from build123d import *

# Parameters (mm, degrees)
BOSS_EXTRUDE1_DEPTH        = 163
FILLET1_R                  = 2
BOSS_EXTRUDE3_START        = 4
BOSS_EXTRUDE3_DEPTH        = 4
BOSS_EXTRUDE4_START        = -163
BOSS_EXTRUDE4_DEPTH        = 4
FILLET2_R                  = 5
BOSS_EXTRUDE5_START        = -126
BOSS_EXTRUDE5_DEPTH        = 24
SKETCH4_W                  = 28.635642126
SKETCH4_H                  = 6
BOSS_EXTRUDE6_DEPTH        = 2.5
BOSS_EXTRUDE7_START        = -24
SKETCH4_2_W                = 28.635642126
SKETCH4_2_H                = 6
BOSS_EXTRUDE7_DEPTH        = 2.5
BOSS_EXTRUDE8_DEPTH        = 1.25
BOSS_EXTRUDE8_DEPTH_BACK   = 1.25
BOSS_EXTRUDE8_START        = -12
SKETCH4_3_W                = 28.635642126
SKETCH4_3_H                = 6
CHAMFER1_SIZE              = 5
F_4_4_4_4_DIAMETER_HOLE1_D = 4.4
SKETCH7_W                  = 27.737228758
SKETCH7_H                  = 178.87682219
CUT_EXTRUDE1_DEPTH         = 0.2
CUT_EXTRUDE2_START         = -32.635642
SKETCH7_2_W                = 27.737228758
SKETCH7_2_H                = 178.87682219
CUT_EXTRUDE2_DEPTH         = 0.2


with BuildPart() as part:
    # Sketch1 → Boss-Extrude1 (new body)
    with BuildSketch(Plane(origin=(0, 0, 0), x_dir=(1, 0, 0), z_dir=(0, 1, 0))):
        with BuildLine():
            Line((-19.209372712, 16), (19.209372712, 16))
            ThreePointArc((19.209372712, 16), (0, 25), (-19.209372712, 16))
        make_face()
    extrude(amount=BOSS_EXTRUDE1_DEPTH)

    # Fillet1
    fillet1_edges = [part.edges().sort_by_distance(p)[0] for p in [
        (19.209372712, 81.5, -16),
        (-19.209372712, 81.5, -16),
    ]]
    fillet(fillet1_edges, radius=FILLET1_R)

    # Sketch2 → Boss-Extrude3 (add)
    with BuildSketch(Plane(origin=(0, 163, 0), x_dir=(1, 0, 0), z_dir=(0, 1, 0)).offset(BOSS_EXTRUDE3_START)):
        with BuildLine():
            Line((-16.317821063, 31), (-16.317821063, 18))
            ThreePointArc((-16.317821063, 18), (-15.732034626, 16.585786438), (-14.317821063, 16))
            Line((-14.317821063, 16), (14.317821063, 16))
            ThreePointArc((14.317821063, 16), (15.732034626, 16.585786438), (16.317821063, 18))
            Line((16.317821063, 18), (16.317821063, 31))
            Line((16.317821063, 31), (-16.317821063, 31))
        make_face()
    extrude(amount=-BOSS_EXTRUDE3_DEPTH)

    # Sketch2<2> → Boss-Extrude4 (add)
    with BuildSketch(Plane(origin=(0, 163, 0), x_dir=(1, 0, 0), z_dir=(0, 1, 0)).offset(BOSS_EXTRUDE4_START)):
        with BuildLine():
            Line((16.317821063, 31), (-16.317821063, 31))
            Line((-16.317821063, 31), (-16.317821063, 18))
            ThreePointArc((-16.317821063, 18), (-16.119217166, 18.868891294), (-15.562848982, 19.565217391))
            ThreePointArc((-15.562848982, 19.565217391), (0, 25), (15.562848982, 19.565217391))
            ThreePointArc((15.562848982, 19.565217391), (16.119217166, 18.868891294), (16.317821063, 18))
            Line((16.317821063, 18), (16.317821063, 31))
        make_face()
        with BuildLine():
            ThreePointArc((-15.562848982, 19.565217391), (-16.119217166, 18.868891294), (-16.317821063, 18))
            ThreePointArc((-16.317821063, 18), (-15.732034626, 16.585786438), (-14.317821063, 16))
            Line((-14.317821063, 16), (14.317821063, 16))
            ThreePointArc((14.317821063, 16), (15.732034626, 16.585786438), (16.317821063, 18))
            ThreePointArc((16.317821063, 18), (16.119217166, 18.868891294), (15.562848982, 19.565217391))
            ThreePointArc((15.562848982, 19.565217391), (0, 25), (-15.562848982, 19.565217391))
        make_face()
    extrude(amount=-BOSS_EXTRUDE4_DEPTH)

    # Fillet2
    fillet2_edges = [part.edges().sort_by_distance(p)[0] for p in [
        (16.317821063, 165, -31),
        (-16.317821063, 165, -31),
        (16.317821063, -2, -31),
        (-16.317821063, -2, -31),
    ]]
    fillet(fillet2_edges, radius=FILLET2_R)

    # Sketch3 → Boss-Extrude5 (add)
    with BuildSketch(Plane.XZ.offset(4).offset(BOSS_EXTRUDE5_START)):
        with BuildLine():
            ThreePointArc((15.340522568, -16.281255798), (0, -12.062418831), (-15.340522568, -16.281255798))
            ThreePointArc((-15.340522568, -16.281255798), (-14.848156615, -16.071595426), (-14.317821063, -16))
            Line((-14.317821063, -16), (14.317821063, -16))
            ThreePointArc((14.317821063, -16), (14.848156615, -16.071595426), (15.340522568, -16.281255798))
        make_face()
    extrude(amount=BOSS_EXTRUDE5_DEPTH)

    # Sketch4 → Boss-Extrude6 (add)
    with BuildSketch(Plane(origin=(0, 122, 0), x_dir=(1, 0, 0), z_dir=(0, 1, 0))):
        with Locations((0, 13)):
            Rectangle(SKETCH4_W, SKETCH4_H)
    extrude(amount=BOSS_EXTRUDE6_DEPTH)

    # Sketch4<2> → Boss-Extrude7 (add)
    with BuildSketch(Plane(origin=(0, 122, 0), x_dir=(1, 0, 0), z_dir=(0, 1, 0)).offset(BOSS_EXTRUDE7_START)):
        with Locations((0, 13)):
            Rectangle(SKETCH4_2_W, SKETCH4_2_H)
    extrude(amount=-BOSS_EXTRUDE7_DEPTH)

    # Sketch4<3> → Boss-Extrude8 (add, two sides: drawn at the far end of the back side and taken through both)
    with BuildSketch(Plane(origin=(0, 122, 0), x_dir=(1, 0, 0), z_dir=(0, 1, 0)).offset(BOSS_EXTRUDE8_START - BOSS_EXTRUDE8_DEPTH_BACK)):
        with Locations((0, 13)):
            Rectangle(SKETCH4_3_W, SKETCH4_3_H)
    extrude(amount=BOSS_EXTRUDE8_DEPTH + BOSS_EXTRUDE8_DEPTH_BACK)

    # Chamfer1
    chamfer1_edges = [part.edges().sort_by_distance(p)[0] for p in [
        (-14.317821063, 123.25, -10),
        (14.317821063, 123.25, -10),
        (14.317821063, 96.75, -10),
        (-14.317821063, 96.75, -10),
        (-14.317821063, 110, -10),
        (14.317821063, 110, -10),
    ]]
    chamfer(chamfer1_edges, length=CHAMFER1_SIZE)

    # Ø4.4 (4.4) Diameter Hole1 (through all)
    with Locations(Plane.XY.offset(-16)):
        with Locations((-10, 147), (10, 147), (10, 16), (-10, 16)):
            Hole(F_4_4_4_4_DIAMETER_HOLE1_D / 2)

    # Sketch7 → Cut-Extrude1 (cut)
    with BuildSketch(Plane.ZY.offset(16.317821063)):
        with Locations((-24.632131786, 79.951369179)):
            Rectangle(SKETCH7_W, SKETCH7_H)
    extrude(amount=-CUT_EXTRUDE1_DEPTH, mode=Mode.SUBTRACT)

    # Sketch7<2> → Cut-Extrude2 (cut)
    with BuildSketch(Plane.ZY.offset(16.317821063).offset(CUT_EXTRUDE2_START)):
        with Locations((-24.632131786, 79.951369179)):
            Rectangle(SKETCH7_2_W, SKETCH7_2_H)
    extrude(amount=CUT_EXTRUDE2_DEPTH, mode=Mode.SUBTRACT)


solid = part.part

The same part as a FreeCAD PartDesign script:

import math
import FreeCAD as App
import Part
import Sketcher


def edges_at(feature, points):
    """Names of the edges that pass closest to the given points."""
    edges = feature.Shape.Edges
    near = lambda p: min(range(len(edges)), key=lambda i: edges[i].distToShape(Part.Vertex(*p))[0])
    return sorted({f"Edge{near(p) + 1}" for p in points})


def add_polygon(sketch, points):
    """Adds a closed chain of lines whose ends are joined by coincident constraints."""
    first, n = sketch.GeometryCount, len(points)
    for a, b in zip(points, points[1:] + points[:1]):
        sketch.addGeometry(Part.LineSegment(App.Vector(*a, 0), App.Vector(*b, 0)), False)
    for i in range(n):
        sketch.addConstraint(Sketcher.Constraint("Coincident", first + i, 2, first + (i + 1) % n, 1))

doc = App.newDocument("Part")
body = doc.addObject("PartDesign::Body", "Body")

# Sketch on XZ plane
sketch1 = body.newObject("Sketcher::SketchObject", "Sketch")
sketch1.AttachmentSupport = (doc.getObject("XZ_Plane"), [""])
sketch1.MapMode = "FlatFace"
sketch1.addGeometry(Part.LineSegment(App.Vector(-19.209373, -16, 0), App.Vector(19.209373, -16, 0)), False)
sketch1.addGeometry(Part.ArcOfCircle(Part.Circle(App.Vector(0, 0, 0), App.Vector(0, 0, 1), 25), math.radians(-140.208181), math.radians(-39.791819)), False)
sketch1.addConstraint(Sketcher.Constraint("Coincident", 0, 1, 1, 1))
sketch1.addConstraint(Sketcher.Constraint("Coincident", 1, 2, 0, 2))
sketch1.addConstraint(Sketcher.Constraint("Horizontal", 0))
sketch1.addConstraint(Sketcher.Constraint("Coincident", 1, 3, -1, 1))
sketch1.addConstraint(Sketcher.Constraint("Radius", 1, 25.0))
sketch1.addConstraint(Sketcher.Constraint("DistanceY", 0, 1, -1, 1, 16.0))
pad1 = body.newObject("PartDesign::Pad", "Pad")
pad1.Profile = sketch1
pad1.Length = 163
pad1.Reversed = True
doc.recompute()

fillet = body.newObject("PartDesign::Fillet", "Fillet")
fillet.Base = (pad1, edges_at(pad1, [(19.209, 81.5, -16), (-19.209, 81.5, -16)]))
fillet.Radius = 2

# Sketch on XZ plane
sketch2 = body.newObject("Sketcher::SketchObject", "Sketch001")
sketch2.AttachmentSupport = (doc.getObject("XZ_Plane"), [""])
sketch2.MapMode = "FlatFace"
sketch2.AttachmentOffset = App.Placement(App.Vector(0, 0, -167), App.Rotation())
sketch2.addGeometry(Part.LineSegment(App.Vector(-16.317821, -31, 0), App.Vector(-16.317821, -18, 0)), False)
sketch2.addGeometry(Part.ArcOfCircle(Part.Circle(App.Vector(-14.317821, -18, 0), App.Vector(0, 0, 1), 2), math.radians(90), math.radians(180)), False)
sketch2.addGeometry(Part.LineSegment(App.Vector(-14.317821, -16, 0), App.Vector(14.317821, -16, 0)), False)
sketch2.addGeometry(Part.ArcOfCircle(Part.Circle(App.Vector(14.317821, -18, 0), App.Vector(0, 0, 1), 2), math.radians(0), math.radians(90)), False)
sketch2.addGeometry(Part.LineSegment(App.Vector(16.317821, -18, 0), App.Vector(16.317821, -31, 0)), False)
sketch2.addGeometry(Part.LineSegment(App.Vector(16.317821, -31, 0), App.Vector(-16.317821, -31, 0)), False)
sketch2.addConstraint(Sketcher.Constraint("Tangent", 0, 2, 1, 2))
sketch2.addConstraint(Sketcher.Constraint("Tangent", 1, 1, 2, 1))
sketch2.addConstraint(Sketcher.Constraint("Tangent", 2, 2, 3, 2))
sketch2.addConstraint(Sketcher.Constraint("Tangent", 3, 1, 4, 1))
sketch2.addConstraint(Sketcher.Constraint("Coincident", 4, 2, 5, 1))
sketch2.addConstraint(Sketcher.Constraint("Coincident", 5, 2, 0, 1))
sketch2.addConstraint(Sketcher.Constraint("Vertical", 0))
sketch2.addConstraint(Sketcher.Constraint("Horizontal", 2))
sketch2.addConstraint(Sketcher.Constraint("Vertical", 4))
sketch2.addConstraint(Sketcher.Constraint("Horizontal", 5))
sketch2.addConstraint(Sketcher.Constraint("Equal", 1, 3))
sketch2.addConstraint(Sketcher.Constraint("Radius", 1, 2.0))
sketch2.addConstraint(Sketcher.Constraint("DistanceY", 0, 1, 0, 2, 13.0))
sketch2.addConstraint(Sketcher.Constraint("DistanceY", 1, 3, -1, 1, 18.0))
sketch2.addConstraint(Sketcher.Constraint("DistanceX", 2, 1, 2, 2, 28.635642))
sketch2.addConstraint(Sketcher.Constraint("DistanceX", 1, 3, -1, 1, 14.317821))
pad2 = body.newObject("PartDesign::Pad", "Pad001")
pad2.Profile = sketch2
pad2.Length = 4

# Sketch on XZ plane
sketch3 = body.newObject("Sketcher::SketchObject", "Sketch002")
sketch3.AttachmentSupport = (doc.getObject("XZ_Plane"), [""])
sketch3.MapMode = "FlatFace"
sketch3.addGeometry(Part.LineSegment(App.Vector(16.317821, -31, 0), App.Vector(-16.317821, -31, 0)), False)
sketch3.addGeometry(Part.LineSegment(App.Vector(-16.317821, -31, 0), App.Vector(-16.317821, -18, 0)), False)
sketch3.addGeometry(Part.ArcOfCircle(Part.Circle(App.Vector(-14.317821, -18, 0), App.Vector(0, 0, 1), 2), math.radians(90), math.radians(180)), False)
sketch3.addGeometry(Part.LineSegment(App.Vector(-14.317821, -16, 0), App.Vector(14.317821, -16, 0)), False)
sketch3.addGeometry(Part.ArcOfCircle(Part.Circle(App.Vector(14.317821, -18, 0), App.Vector(0, 0, 1), 2), math.radians(0), math.radians(90)), False)
sketch3.addGeometry(Part.LineSegment(App.Vector(16.317821, -18, 0), App.Vector(16.317821, -31, 0)), False)
sketch3.addConstraint(Sketcher.Constraint("Coincident", 0, 2, 1, 1))
sketch3.addConstraint(Sketcher.Constraint("Tangent", 1, 2, 2, 2))
sketch3.addConstraint(Sketcher.Constraint("Tangent", 2, 1, 3, 1))
sketch3.addConstraint(Sketcher.Constraint("Tangent", 3, 2, 4, 2))
sketch3.addConstraint(Sketcher.Constraint("Tangent", 4, 1, 5, 1))
sketch3.addConstraint(Sketcher.Constraint("Coincident", 5, 2, 0, 1))
sketch3.addConstraint(Sketcher.Constraint("Horizontal", 0))
sketch3.addConstraint(Sketcher.Constraint("Vertical", 1))
sketch3.addConstraint(Sketcher.Constraint("Horizontal", 3))
sketch3.addConstraint(Sketcher.Constraint("Vertical", 5))
sketch3.addConstraint(Sketcher.Constraint("Equal", 2, 4))
sketch3.addConstraint(Sketcher.Constraint("Radius", 2, 2.0))
sketch3.addConstraint(Sketcher.Constraint("DistanceY", 1, 1, 1, 2, 13.0))
sketch3.addConstraint(Sketcher.Constraint("DistanceY", 2, 3, -1, 1, 18.0))
sketch3.addConstraint(Sketcher.Constraint("DistanceX", 0, 2, 0, 1, 32.635642))
sketch3.addConstraint(Sketcher.Constraint("DistanceX", 2, 3, -1, 1, 14.317821))
pad3 = body.newObject("PartDesign::Pad", "Pad002")
pad3.Profile = sketch3
pad3.Length = 4
doc.recompute()

fillet2 = body.newObject("PartDesign::Fillet", "Fillet001")
fillet2.Base = (pad3, edges_at(pad3, [
    (16.318, 165, -31),
    (-16.318, 165, -31),
    (16.318, -2, -31),
    (-16.318, -2, -31),
]))
fillet2.Radius = 5

# Sketch on XZ plane
sketch4 = body.newObject("Sketcher::SketchObject", "Sketch003")
sketch4.AttachmentSupport = (doc.getObject("XZ_Plane"), [""])
sketch4.MapMode = "FlatFace"
sketch4.AttachmentOffset = App.Placement(App.Vector(0, 0, -122), App.Rotation())
sketch4.addGeometry(Part.ArcOfCircle(Part.Circle(App.Vector(0, -42.062419, 0), App.Vector(0, 0, 1), 30), math.radians(59.246155), math.radians(120.753845)), False)
sketch4.addGeometry(Part.ArcOfCircle(Part.Circle(App.Vector(-14.317821, -18, 0), App.Vector(0, 0, 1), 2), math.radians(90), math.radians(120.753845)), False)
sketch4.addGeometry(Part.LineSegment(App.Vector(-14.317821, -16, 0), App.Vector(14.317821, -16, 0)), False)
sketch4.addGeometry(Part.ArcOfCircle(Part.Circle(App.Vector(14.317821, -18, 0), App.Vector(0, 0, 1), 2), math.radians(59.246155), math.radians(90)), False)
sketch4.addConstraint(Sketcher.Constraint("Tangent", 0, 2, 1, 2))
sketch4.addConstraint(Sketcher.Constraint("Tangent", 1, 1, 2, 1))
sketch4.addConstraint(Sketcher.Constraint("Tangent", 2, 2, 3, 2))
sketch4.addConstraint(Sketcher.Constraint("Tangent", 3, 1, 0, 1))
sketch4.addConstraint(Sketcher.Constraint("Horizontal", 2))
sketch4.addConstraint(Sketcher.Constraint("Equal", 1, 3))
sketch4.addConstraint(Sketcher.Constraint("PointOnObject", 0, 3, -2))
sketch4.addConstraint(Sketcher.Constraint("Radius", 0, 30.0))
sketch4.addConstraint(Sketcher.Constraint("Radius", 1, 2.0))
sketch4.addConstraint(Sketcher.Constraint("DistanceY", 1, 3, -1, 1, 18.0))
sketch4.addConstraint(Sketcher.Constraint("DistanceX", 2, 2, 3, 1, 1.022702))
pad4 = body.newObject("PartDesign::Pad", "Pad003")
pad4.Profile = sketch4
pad4.Length = 24

# Sketch on XZ plane
sketch5 = body.newObject("Sketcher::SketchObject", "Sketch004")
sketch5.AttachmentSupport = (doc.getObject("XZ_Plane"), [""])
sketch5.MapMode = "FlatFace"
sketch5.AttachmentOffset = App.Placement(App.Vector(0, 0, -122), App.Rotation())
add_polygon(sketch5, [(-14.317821, -16), (-14.317821, -10), (14.317821, -10), (14.317821, -16)])  # lines 0-3
sketch5.addConstraint(Sketcher.Constraint("Vertical", 0))
sketch5.addConstraint(Sketcher.Constraint("Horizontal", 1))
sketch5.addConstraint(Sketcher.Constraint("Vertical", 2))
sketch5.addConstraint(Sketcher.Constraint("Horizontal", 3))
sketch5.addConstraint(Sketcher.Constraint("DistanceY", 0, 1, 0, 2, 6.0))
sketch5.addConstraint(Sketcher.Constraint("DistanceY", 0, 2, -1, 1, 10.0))
sketch5.addConstraint(Sketcher.Constraint("DistanceX", 1, 1, 1, 2, 28.635642))
sketch5.addConstraint(Sketcher.Constraint("DistanceX", 0, 2, -1, 1, 14.317821))
pad5 = body.newObject("PartDesign::Pad", "Pad004")
pad5.Profile = sketch5
pad5.Length = 2.5
pad5.Reversed = True

# Sketch on XZ plane
sketch6 = body.newObject("Sketcher::SketchObject", "Sketch005")
sketch6.AttachmentSupport = (doc.getObject("XZ_Plane"), [""])
sketch6.MapMode = "FlatFace"
sketch6.AttachmentOffset = App.Placement(App.Vector(0, 0, -98), App.Rotation())
add_polygon(sketch6, [(-14.317821, -16), (-14.317821, -10), (14.317821, -10), (14.317821, -16)])  # lines 0-3
sketch6.addConstraint(Sketcher.Constraint("Vertical", 0))
sketch6.addConstraint(Sketcher.Constraint("Horizontal", 1))
sketch6.addConstraint(Sketcher.Constraint("Vertical", 2))
sketch6.addConstraint(Sketcher.Constraint("Horizontal", 3))
sketch6.addConstraint(Sketcher.Constraint("DistanceY", 0, 1, 0, 2, 6.0))
sketch6.addConstraint(Sketcher.Constraint("DistanceY", 0, 2, -1, 1, 10.0))
sketch6.addConstraint(Sketcher.Constraint("DistanceX", 1, 1, 1, 2, 28.635642))
sketch6.addConstraint(Sketcher.Constraint("DistanceX", 0, 2, -1, 1, 14.317821))
pad6 = body.newObject("PartDesign::Pad", "Pad005")
pad6.Profile = sketch6
pad6.Length = 2.5

# Sketch on XZ plane
sketch7 = body.newObject("Sketcher::SketchObject", "Sketch006")
sketch7.AttachmentSupport = (doc.getObject("XZ_Plane"), [""])
sketch7.MapMode = "FlatFace"
sketch7.AttachmentOffset = App.Placement(App.Vector(0, 0, -110), App.Rotation())
add_polygon(sketch7, [(-14.317821, -16), (-14.317821, -10), (14.317821, -10), (14.317821, -16)])  # lines 0-3
sketch7.addConstraint(Sketcher.Constraint("Vertical", 0))
sketch7.addConstraint(Sketcher.Constraint("Horizontal", 1))
sketch7.addConstraint(Sketcher.Constraint("Vertical", 2))
sketch7.addConstraint(Sketcher.Constraint("Horizontal", 3))
sketch7.addConstraint(Sketcher.Constraint("DistanceY", 0, 1, 0, 2, 6.0))
sketch7.addConstraint(Sketcher.Constraint("DistanceY", 0, 2, -1, 1, 10.0))
sketch7.addConstraint(Sketcher.Constraint("DistanceX", 1, 1, 1, 2, 28.635642))
sketch7.addConstraint(Sketcher.Constraint("DistanceX", 0, 2, -1, 1, 14.317821))
pad7 = body.newObject("PartDesign::Pad", "Pad006")
pad7.Profile = sketch7
pad7.Type = "TwoLengths"
pad7.Length = 1.25
pad7.Length2 = 1.25
pad7.Reversed = True
doc.recompute()

chamfer = body.newObject("PartDesign::Chamfer", "Chamfer")
chamfer.Base = (pad7, edges_at(pad7, [
    (-14.318, 123.25, -10),
    (14.318, 123.25, -10),
    (14.318, 96.75, -10),
    (-14.318, 96.75, -10),
    (-14.318, 110, -10),
    (14.318, 110, -10),
]))
chamfer.Size = 5

# Sketch on XY plane
sketch8 = body.newObject("Sketcher::SketchObject", "Sketch007")
sketch8.AttachmentSupport = (doc.getObject("XY_Plane"), [""])
sketch8.MapMode = "FlatFace"
sketch8.AttachmentOffset = App.Placement(App.Vector(0, 0, -16), App.Rotation())
sketch8.addGeometry(Part.Circle(App.Vector(-10, 147, 0), App.Vector(0, 0, 1), 2.2), False)
sketch8.addGeometry(Part.Circle(App.Vector(10, 147, 0), App.Vector(0, 0, 1), 2.2), False)
sketch8.addGeometry(Part.Circle(App.Vector(10, 16, 0), App.Vector(0, 0, 1), 2.2), False)
sketch8.addGeometry(Part.Circle(App.Vector(-10, 16, 0), App.Vector(0, 0, 1), 2.2), False)
sketch8.addConstraint(Sketcher.Constraint("Equal", 0, 1))
sketch8.addConstraint(Sketcher.Constraint("Equal", 1, 2))
sketch8.addConstraint(Sketcher.Constraint("Equal", 2, 3))
sketch8.addConstraint(Sketcher.Constraint("Symmetric", 0, 3, 1, 3, -2))
sketch8.addConstraint(Sketcher.Constraint("Symmetric", 2, 3, 3, 3, -2))
sketch8.addConstraint(Sketcher.Constraint("Vertical", 1, 3, 2, 3))
sketch8.addConstraint(Sketcher.Constraint("Diameter", 0, 4.4))
sketch8.addConstraint(Sketcher.Constraint("DistanceX", 0, 3, -1, 1, 10.0))
sketch8.addConstraint(Sketcher.Constraint("DistanceY", -1, 1, 0, 3, 147.0))
sketch8.addConstraint(Sketcher.Constraint("DistanceY", -1, 1, 2, 3, 16.0))
doc.recompute()
hole = body.newObject("PartDesign::Hole", "Hole")
hole.Profile = sketch8
hole.ThreadType = "None"
hole.Diameter = 4.4
hole.DepthType = "ThroughAll"

# Sketch on YZ plane
sketch9 = body.newObject("Sketcher::SketchObject", "Sketch008")
sketch9.AttachmentSupport = (doc.getObject("YZ_Plane"), [""])
sketch9.MapMode = "FlatFace"
sketch9.AttachmentOffset = App.Placement(App.Vector(0, 0, -16.317821), App.Rotation())
add_polygon(sketch9, [(169.38978, -38.500746), (-9.487042, -38.500746), (-9.487042, -10.763517), (169.38978, -10.763517)])  # lines 0-3
sketch9.addConstraint(Sketcher.Constraint("Horizontal", 0))
sketch9.addConstraint(Sketcher.Constraint("Vertical", 1))
sketch9.addConstraint(Sketcher.Constraint("Horizontal", 2))
sketch9.addConstraint(Sketcher.Constraint("Vertical", 3))
sketch9.addConstraint(Sketcher.Constraint("DistanceY", 1, 1, 1, 2, 27.737229))
sketch9.addConstraint(Sketcher.Constraint("DistanceX", 0, 2, 0, 1, 178.876822))
sketch9.addConstraint(Sketcher.Constraint("DistanceX", 0, 2, -1, 1, 9.487042))
sketch9.addConstraint(Sketcher.Constraint("DistanceY", 0, 2, -1, 1, 38.500746))
pocket1 = body.newObject("PartDesign::Pocket", "Pocket")
pocket1.Profile = sketch9
pocket1.Length = 0.2
pocket1.Reversed = True

# Sketch on YZ plane
sketch10 = body.newObject("Sketcher::SketchObject", "Sketch009")
sketch10.AttachmentSupport = (doc.getObject("YZ_Plane"), [""])
sketch10.MapMode = "FlatFace"
sketch10.AttachmentOffset = App.Placement(App.Vector(0, 0, 16.317821), App.Rotation())
add_polygon(sketch10, [(169.38978, -38.500746), (-9.487042, -38.500746), (-9.487042, -10.763517), (169.38978, -10.763517)])  # lines 0-3
sketch10.addConstraint(Sketcher.Constraint("Horizontal", 0))
sketch10.addConstraint(Sketcher.Constraint("Vertical", 1))
sketch10.addConstraint(Sketcher.Constraint("Horizontal", 2))
sketch10.addConstraint(Sketcher.Constraint("Vertical", 3))
sketch10.addConstraint(Sketcher.Constraint("DistanceY", 1, 1, 1, 2, 27.737229))
sketch10.addConstraint(Sketcher.Constraint("DistanceX", 0, 2, 0, 1, 178.876822))
sketch10.addConstraint(Sketcher.Constraint("DistanceX", 0, 2, -1, 1, 9.487042))
sketch10.addConstraint(Sketcher.Constraint("DistanceY", 0, 2, -1, 1, 38.500746))
pocket2 = body.newObject("PartDesign::Pocket", "Pocket001")
pocket2.Profile = sketch10
pocket2.Length = 0.2

doc.recompute()
